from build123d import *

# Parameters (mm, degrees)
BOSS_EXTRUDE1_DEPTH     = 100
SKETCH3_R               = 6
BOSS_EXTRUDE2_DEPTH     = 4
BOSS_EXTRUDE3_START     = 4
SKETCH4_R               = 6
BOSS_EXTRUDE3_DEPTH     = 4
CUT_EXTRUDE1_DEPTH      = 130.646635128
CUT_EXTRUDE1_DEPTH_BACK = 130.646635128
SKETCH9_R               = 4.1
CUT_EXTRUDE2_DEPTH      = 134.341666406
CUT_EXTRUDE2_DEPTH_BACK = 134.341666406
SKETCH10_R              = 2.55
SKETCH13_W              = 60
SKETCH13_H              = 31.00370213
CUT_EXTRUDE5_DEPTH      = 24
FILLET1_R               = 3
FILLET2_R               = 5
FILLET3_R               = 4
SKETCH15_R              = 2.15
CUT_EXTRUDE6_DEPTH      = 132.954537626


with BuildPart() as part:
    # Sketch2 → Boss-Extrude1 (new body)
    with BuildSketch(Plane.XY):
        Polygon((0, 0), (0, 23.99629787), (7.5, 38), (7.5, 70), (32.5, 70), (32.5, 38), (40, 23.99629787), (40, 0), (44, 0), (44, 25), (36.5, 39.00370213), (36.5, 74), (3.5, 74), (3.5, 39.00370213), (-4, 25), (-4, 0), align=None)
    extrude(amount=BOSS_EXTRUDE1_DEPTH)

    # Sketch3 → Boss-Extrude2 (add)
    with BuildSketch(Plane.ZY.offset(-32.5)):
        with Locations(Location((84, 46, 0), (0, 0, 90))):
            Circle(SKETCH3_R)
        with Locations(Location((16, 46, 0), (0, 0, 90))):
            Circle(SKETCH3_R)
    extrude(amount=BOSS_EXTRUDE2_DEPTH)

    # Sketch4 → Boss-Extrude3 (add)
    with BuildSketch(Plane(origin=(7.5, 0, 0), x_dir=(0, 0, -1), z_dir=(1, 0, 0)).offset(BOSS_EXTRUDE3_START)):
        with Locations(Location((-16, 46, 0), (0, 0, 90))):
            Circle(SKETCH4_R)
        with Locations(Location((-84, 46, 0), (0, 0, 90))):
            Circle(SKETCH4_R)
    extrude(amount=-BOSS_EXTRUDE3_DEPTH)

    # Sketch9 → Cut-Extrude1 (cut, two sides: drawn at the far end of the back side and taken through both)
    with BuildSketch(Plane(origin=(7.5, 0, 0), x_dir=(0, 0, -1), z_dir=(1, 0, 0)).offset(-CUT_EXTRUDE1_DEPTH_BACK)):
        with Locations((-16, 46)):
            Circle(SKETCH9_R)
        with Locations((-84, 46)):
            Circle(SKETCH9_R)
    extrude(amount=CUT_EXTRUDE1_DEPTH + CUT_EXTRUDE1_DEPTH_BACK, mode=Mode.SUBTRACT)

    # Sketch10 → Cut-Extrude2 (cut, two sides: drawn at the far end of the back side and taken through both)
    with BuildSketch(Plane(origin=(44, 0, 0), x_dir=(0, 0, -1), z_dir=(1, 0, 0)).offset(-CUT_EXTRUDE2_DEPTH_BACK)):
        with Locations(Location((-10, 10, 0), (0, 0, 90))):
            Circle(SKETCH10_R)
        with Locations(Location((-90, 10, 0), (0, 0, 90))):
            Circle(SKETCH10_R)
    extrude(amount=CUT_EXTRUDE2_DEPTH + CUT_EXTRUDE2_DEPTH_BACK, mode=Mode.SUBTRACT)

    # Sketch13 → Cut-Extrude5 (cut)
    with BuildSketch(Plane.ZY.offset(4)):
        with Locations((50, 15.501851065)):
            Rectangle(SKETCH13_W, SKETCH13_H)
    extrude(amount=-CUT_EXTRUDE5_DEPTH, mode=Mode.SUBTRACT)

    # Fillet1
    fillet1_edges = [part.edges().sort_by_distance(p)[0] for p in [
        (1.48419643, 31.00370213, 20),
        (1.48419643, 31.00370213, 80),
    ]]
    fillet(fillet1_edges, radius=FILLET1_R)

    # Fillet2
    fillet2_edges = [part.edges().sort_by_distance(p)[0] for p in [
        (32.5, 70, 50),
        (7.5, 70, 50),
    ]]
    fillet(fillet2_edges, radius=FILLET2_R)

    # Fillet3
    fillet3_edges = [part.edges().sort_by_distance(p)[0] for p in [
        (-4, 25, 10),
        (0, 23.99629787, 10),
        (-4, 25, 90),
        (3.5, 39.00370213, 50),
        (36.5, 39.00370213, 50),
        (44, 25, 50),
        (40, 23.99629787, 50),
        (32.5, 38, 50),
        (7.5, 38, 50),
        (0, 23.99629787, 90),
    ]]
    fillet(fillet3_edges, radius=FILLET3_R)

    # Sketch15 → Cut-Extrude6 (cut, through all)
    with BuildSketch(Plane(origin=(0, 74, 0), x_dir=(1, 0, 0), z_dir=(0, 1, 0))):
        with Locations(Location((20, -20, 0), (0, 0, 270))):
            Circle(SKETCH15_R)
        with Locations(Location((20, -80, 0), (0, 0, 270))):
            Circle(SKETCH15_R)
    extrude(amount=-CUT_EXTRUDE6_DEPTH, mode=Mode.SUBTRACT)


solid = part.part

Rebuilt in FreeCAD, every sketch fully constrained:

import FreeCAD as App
import Part
import Sketcher
from FreeCAD import Vector


def edges_at(feature, points):
    """Names of the edges that pass closest to the given points."""
    edges = feature.Shape.Edges
    near = lambda p: min(range(len(edges)), key=lambda i: edges[i].distToShape(Part.Vertex(*p))[0])
    return sorted({f"Edge{near(p) + 1}" for p in points})


def add_polygon(sketch, points):
    """Adds a closed chain of lines whose ends are joined by coincident constraints."""
    first, n = sketch.GeometryCount, len(points)
    for a, b in zip(points, points[1:] + points[:1]):
        sketch.addGeometry(Part.LineSegment(App.Vector(*a, 0), App.Vector(*b, 0)), False)
    for i in range(n):
        sketch.addConstraint(Sketcher.Constraint("Coincident", first + i, 2, first + (i + 1) % n, 1))

doc = App.newDocument("Part")
body = doc.addObject("PartDesign::Body", "Body")

# Sketch on XY plane
sketch1 = body.newObject("Sketcher::SketchObject", "Sketch")
sketch1.AttachmentSupport = (doc.getObject("XY_Plane"), [""])
sketch1.MapMode = "FlatFace"
add_polygon(sketch1, [(0, 0), (0, 24), (7.5, 38), (7.5, 70), (32.5, 70), (32.5, 38), (40, 24), (40, 0), (44, 0), (44, 25), (36.5, 39), (36.5, 74), (3.5, 74), (3.5, 39), (-4, 25), (-4, 0)])  # lines 0-15
sketch1.addConstraint([
    Sketcher.Constraint("Vertical", 0),
    Sketcher.Constraint("Vertical", 2),
    Sketcher.Constraint("Horizontal", 3),
    Sketcher.Constraint("Vertical", 4),
    Sketcher.Constraint("Vertical", 6),
    Sketcher.Constraint("Horizontal", 7),
    Sketcher.Constraint("Vertical", 8),
    Sketcher.Constraint("Vertical", 10),
    Sketcher.Constraint("Horizontal", 11),
    Sketcher.Constraint("Vertical", 12),
    Sketcher.Constraint("Vertical", 14),
    Sketcher.Constraint("Horizontal", 15),
    Sketcher.Constraint("Coincident", 15, 2, -1, 1),
    Sketcher.Constraint("PointOnObject", 6, 2, -1),
    Sketcher.Constraint("Parallel", 5, 9),
    Sketcher.Constraint("Parallel", 1, 13),
    Sketcher.Constraint("Horizontal", 1, 2, 4, 2),
    Sketcher.Constraint("Horizontal", 0, 2, 5, 2),
    Sketcher.Constraint("Horizontal", 9, 2, 12, 2),
    Sketcher.Constraint("Horizontal", 8, 2, 13, 2),
    Sketcher.Constraint("Equal", 7, 15),
    Sketcher.Constraint("Equal", 3, 8),
    Sketcher.Constraint("Equal", 1, 5),
    Sketcher.Constraint("Equal", 5, 9),
    Sketcher.Constraint("DistanceX", 3, 1, 3, 2, 25.0),
    Sketcher.Constraint("DistanceX", 7, 1, 7, 2, 4.0),
    Sketcher.Constraint("DistanceY", 2, 1, 2, 2, 32.0),
    Sketcher.Constraint("DistanceY", -1, 1, 1, 2, 38.0),
    Sketcher.Constraint("DistanceX", -1, 1, 5, 2, 40.0),
    Sketcher.Constraint("DistanceY", -1, 1, 10, 2, 74.0),
    Sketcher.Constraint("DistanceY", 0, 1, 0, 2, 23.996298),
])
pad1 = body.newObject("PartDesign::Pad", "Pad")
pad1.Profile = sketch1
pad1.Length = 100

# Sketch on YZ plane
sketch2 = body.newObject("Sketcher::SketchObject", "Sketch001")
sketch2.AttachmentSupport = (doc.getObject("YZ_Plane"), [""])
sketch2.MapMode = "FlatFace"
sketch2.AttachmentOffset = App.Placement(Vector(0, 0, 32.5), App.Rotation())
sketch2.addGeometry([
    Part.Circle(Vector(46, 84, 0), Vector(0, 0, 1), 6),
    Part.Circle(Vector(46, 16, 0), Vector(0, 0, 1), 6),
], False)
sketch2.addConstraint([
    Sketcher.Constraint("Equal", 0, 1),
    Sketcher.Constraint("Vertical", 0, 3, 1, 3),
    Sketcher.Constraint("Diameter", 0, 12.0),
    Sketcher.Constraint("DistanceX", -1, 1, 0, 3, 46.0),
    Sketcher.Constraint("DistanceY", -1, 1, 0, 3, 84.0),
    Sketcher.Constraint("DistanceY", -1, 1, 1, 3, 16.0),
])
pad2 = body.newObject("PartDesign::Pad", "Pad001")
pad2.Profile = sketch2
pad2.Length = 4
pad2.Reversed = True

# Sketch on YZ plane
sketch3 = body.newObject("Sketcher::SketchObject", "Sketch002")
sketch3.AttachmentSupport = (doc.getObject("YZ_Plane"), [""])
sketch3.MapMode = "FlatFace"
sketch3.AttachmentOffset = App.Placement(Vector(0, 0, 11.5), App.Rotation())
sketch3.addGeometry([
    Part.Circle(Vector(46, 16, 0), Vector(0, 0, 1), 6),
    Part.Circle(Vector(46, 84, 0), Vector(0, 0, 1), 6),
], False)
sketch3.addConstraint([
    Sketcher.Constraint("Equal", 0, 1),
    Sketcher.Constraint("Vertical", 0, 3, 1, 3),
    Sketcher.Constraint("Diameter", 0, 12.0),
    Sketcher.Constraint("DistanceX", -1, 1, 0, 3, 46.0),
    Sketcher.Constraint("DistanceY", -1, 1, 0, 3, 16.0),
    Sketcher.Constraint("DistanceY", -1, 1, 1, 3, 84.0),
])
pad3 = body.newObject("PartDesign::Pad", "Pad002")
pad3.Profile = sketch3
pad3.Length = 4
pad3.Reversed = True

# Sketch on YZ plane
sketch4 = body.newObject("Sketcher::SketchObject", "Sketch003")
sketch4.AttachmentSupport = (doc.getObject("YZ_Plane"), [""])
sketch4.MapMode = "FlatFace"
sketch4.AttachmentOffset = App.Placement(Vector(0, 0, 7.5), App.Rotation())
sketch4.addGeometry([
    Part.Circle(Vector(46, 16, 0), Vector(0, 0, 1), 4.1),
    Part.Circle(Vector(46, 84, 0), Vector(0, 0, 1), 4.1),
], False)
sketch4.addConstraint([
    Sketcher.Constraint("Equal", 0, 1),
    Sketcher.Constraint("Vertical", 0, 3, 1, 3),
    Sketcher.Constraint("Diameter", 0, 8.2),
    Sketcher.Constraint("DistanceX", -1, 1, 0, 3, 46.0),
    Sketcher.Constraint("DistanceY", -1, 1, 0, 3, 16.0),
    Sketcher.Constraint("DistanceY", -1, 1, 1, 3, 84.0),
])
pocket1 = body.newObject("PartDesign::Pocket", "Pocket")
pocket1.Profile = sketch4
pocket1.Type = "ThroughAll"
pocket1.Midplane = True

# Sketch on YZ plane
sketch5 = body.newObject("Sketcher::SketchObject", "Sketch004")
sketch5.AttachmentSupport = (doc.getObject("YZ_Plane"), [""])
sketch5.MapMode = "FlatFace"
sketch5.AttachmentOffset = App.Placement(Vector(0, 0, 44), App.Rotation())
sketch5.addGeometry([
    Part.Circle(Vector(10, 10, 0), Vector(0, 0, 1), 2.5),
    Part.Circle(Vector(10, 90, 0), Vector(0, 0, 1), 2.5),
], False)
sketch5.addConstraint([
    Sketcher.Constraint("Equal", 0, 1),
    Sketcher.Constraint("Vertical", 0, 3, 1, 3),
    Sketcher.Constraint("Diameter", 0, 5.1),
    Sketcher.Constraint("DistanceX", -1, 1, 0, 3, 10.0),
    Sketcher.Constraint("DistanceY", -1, 1, 0, 3, 10.0),
    Sketcher.Constraint("DistanceY", -1, 1, 1, 3, 90.0),
])
pocket2 = body.newObject("PartDesign::Pocket", "Pocket001")
pocket2.Profile = sketch5
pocket2.Type = "ThroughAll"
pocket2.Midplane = True

# Sketch on YZ plane
sketch6 = body.newObject("Sketcher::SketchObject", "Sketch005")
sketch6.AttachmentSupport = (doc.getObject("YZ_Plane"), [""])
sketch6.MapMode = "FlatFace"
sketch6.AttachmentOffset = App.Placement(Vector(0, 0, -4), App.Rotation())
add_polygon(sketch6, [(31, 20), (0, 20), (0, 80), (31, 80)])  # lines 0-3
sketch6.addConstraint([
    Sketcher.Constraint("Horizontal", 0),
    Sketcher.Constraint("Vertical", 1),
    Sketcher.Constraint("Horizontal", 2),
    Sketcher.Constraint("Vertical", 3),
    Sketcher.Constraint("PointOnObject", 0, 2, -2),
    Sketcher.Constraint("DistanceY", 1, 1, 1, 2, 60.0),
    Sketcher.Constraint("DistanceY", -1, 1, 0, 2, 20.0),
    Sketcher.Constraint("DistanceX", 0, 2, 0, 1, 31.003702),
])
pocket3 = body.newObject("PartDesign::Pocket", "Pocket002")
pocket3.Profile = sketch6
pocket3.Length = 24
pocket3.Reversed = True
doc.recompute()

fillet = body.newObject("PartDesign::Fillet", "Fillet")
fillet.Base = (pocket3, edges_at(pocket3, [(1.484, 31.004, 20), (1.484, 31.004, 80)]))
fillet.Radius = 3
doc.recompute()

fillet2 = body.newObject("PartDesign::Fillet", "Fillet001")
fillet2.Base = (fillet, edges_at(fillet, [(32.5, 70, 50), (7.5, 70, 50)]))
fillet2.Radius = 5
doc.recompute()

fillet3 = body.newObject("PartDesign::Fillet", "Fillet002")
fillet3.Base = (fillet2, edges_at(fillet2, [
    (-4, 25, 10),
    (0, 23.996, 10),
    (-4, 25, 90),
    (3.5, 39.004, 50),
    (36.5, 39.004, 50),
    (44, 25, 50),
    (40, 23.996, 50),
    (32.5, 38, 50),
    (7.5, 38, 50),
    (0, 23.996, 90),
]))
fillet3.Radius = 4

# Sketch on XZ plane
sketch7 = body.newObject("Sketcher::SketchObject", "Sketch006")
sketch7.AttachmentSupport = (doc.getObject("XZ_Plane"), [""])
sketch7.MapMode = "FlatFace"
sketch7.AttachmentOffset = App.Placement(Vector(0, 0, -74), App.Rotation())
sketch7.addGeometry([
    Part.Circle(Vector(20, 20, 0), Vector(0, 0, 1), 2.1),
    Part.Circle(Vector(20, 80, 0), Vector(0, 0, 1), 2.1),
], False)
sketch7.addConstraint([
    Sketcher.Constraint("Equal", 0, 1),
    Sketcher.Constraint("Vertical", 0, 3, 1, 3),
    Sketcher.Constraint("Diameter", 0, 4.3),
    Sketcher.Constraint("DistanceX", -1, 1, 0, 3, 20.0),
    Sketcher.Constraint("DistanceY", -1, 1, 0, 3, 20.0),
    Sketcher.Constraint("DistanceY", -1, 1, 1, 3, 80.0),
])
pocket4 = body.newObject("PartDesign::Pocket", "Pocket003")
pocket4.Profile = sketch7
pocket4.Type = "ThroughAll"
pocket4.Reversed = True

doc.recompute()
